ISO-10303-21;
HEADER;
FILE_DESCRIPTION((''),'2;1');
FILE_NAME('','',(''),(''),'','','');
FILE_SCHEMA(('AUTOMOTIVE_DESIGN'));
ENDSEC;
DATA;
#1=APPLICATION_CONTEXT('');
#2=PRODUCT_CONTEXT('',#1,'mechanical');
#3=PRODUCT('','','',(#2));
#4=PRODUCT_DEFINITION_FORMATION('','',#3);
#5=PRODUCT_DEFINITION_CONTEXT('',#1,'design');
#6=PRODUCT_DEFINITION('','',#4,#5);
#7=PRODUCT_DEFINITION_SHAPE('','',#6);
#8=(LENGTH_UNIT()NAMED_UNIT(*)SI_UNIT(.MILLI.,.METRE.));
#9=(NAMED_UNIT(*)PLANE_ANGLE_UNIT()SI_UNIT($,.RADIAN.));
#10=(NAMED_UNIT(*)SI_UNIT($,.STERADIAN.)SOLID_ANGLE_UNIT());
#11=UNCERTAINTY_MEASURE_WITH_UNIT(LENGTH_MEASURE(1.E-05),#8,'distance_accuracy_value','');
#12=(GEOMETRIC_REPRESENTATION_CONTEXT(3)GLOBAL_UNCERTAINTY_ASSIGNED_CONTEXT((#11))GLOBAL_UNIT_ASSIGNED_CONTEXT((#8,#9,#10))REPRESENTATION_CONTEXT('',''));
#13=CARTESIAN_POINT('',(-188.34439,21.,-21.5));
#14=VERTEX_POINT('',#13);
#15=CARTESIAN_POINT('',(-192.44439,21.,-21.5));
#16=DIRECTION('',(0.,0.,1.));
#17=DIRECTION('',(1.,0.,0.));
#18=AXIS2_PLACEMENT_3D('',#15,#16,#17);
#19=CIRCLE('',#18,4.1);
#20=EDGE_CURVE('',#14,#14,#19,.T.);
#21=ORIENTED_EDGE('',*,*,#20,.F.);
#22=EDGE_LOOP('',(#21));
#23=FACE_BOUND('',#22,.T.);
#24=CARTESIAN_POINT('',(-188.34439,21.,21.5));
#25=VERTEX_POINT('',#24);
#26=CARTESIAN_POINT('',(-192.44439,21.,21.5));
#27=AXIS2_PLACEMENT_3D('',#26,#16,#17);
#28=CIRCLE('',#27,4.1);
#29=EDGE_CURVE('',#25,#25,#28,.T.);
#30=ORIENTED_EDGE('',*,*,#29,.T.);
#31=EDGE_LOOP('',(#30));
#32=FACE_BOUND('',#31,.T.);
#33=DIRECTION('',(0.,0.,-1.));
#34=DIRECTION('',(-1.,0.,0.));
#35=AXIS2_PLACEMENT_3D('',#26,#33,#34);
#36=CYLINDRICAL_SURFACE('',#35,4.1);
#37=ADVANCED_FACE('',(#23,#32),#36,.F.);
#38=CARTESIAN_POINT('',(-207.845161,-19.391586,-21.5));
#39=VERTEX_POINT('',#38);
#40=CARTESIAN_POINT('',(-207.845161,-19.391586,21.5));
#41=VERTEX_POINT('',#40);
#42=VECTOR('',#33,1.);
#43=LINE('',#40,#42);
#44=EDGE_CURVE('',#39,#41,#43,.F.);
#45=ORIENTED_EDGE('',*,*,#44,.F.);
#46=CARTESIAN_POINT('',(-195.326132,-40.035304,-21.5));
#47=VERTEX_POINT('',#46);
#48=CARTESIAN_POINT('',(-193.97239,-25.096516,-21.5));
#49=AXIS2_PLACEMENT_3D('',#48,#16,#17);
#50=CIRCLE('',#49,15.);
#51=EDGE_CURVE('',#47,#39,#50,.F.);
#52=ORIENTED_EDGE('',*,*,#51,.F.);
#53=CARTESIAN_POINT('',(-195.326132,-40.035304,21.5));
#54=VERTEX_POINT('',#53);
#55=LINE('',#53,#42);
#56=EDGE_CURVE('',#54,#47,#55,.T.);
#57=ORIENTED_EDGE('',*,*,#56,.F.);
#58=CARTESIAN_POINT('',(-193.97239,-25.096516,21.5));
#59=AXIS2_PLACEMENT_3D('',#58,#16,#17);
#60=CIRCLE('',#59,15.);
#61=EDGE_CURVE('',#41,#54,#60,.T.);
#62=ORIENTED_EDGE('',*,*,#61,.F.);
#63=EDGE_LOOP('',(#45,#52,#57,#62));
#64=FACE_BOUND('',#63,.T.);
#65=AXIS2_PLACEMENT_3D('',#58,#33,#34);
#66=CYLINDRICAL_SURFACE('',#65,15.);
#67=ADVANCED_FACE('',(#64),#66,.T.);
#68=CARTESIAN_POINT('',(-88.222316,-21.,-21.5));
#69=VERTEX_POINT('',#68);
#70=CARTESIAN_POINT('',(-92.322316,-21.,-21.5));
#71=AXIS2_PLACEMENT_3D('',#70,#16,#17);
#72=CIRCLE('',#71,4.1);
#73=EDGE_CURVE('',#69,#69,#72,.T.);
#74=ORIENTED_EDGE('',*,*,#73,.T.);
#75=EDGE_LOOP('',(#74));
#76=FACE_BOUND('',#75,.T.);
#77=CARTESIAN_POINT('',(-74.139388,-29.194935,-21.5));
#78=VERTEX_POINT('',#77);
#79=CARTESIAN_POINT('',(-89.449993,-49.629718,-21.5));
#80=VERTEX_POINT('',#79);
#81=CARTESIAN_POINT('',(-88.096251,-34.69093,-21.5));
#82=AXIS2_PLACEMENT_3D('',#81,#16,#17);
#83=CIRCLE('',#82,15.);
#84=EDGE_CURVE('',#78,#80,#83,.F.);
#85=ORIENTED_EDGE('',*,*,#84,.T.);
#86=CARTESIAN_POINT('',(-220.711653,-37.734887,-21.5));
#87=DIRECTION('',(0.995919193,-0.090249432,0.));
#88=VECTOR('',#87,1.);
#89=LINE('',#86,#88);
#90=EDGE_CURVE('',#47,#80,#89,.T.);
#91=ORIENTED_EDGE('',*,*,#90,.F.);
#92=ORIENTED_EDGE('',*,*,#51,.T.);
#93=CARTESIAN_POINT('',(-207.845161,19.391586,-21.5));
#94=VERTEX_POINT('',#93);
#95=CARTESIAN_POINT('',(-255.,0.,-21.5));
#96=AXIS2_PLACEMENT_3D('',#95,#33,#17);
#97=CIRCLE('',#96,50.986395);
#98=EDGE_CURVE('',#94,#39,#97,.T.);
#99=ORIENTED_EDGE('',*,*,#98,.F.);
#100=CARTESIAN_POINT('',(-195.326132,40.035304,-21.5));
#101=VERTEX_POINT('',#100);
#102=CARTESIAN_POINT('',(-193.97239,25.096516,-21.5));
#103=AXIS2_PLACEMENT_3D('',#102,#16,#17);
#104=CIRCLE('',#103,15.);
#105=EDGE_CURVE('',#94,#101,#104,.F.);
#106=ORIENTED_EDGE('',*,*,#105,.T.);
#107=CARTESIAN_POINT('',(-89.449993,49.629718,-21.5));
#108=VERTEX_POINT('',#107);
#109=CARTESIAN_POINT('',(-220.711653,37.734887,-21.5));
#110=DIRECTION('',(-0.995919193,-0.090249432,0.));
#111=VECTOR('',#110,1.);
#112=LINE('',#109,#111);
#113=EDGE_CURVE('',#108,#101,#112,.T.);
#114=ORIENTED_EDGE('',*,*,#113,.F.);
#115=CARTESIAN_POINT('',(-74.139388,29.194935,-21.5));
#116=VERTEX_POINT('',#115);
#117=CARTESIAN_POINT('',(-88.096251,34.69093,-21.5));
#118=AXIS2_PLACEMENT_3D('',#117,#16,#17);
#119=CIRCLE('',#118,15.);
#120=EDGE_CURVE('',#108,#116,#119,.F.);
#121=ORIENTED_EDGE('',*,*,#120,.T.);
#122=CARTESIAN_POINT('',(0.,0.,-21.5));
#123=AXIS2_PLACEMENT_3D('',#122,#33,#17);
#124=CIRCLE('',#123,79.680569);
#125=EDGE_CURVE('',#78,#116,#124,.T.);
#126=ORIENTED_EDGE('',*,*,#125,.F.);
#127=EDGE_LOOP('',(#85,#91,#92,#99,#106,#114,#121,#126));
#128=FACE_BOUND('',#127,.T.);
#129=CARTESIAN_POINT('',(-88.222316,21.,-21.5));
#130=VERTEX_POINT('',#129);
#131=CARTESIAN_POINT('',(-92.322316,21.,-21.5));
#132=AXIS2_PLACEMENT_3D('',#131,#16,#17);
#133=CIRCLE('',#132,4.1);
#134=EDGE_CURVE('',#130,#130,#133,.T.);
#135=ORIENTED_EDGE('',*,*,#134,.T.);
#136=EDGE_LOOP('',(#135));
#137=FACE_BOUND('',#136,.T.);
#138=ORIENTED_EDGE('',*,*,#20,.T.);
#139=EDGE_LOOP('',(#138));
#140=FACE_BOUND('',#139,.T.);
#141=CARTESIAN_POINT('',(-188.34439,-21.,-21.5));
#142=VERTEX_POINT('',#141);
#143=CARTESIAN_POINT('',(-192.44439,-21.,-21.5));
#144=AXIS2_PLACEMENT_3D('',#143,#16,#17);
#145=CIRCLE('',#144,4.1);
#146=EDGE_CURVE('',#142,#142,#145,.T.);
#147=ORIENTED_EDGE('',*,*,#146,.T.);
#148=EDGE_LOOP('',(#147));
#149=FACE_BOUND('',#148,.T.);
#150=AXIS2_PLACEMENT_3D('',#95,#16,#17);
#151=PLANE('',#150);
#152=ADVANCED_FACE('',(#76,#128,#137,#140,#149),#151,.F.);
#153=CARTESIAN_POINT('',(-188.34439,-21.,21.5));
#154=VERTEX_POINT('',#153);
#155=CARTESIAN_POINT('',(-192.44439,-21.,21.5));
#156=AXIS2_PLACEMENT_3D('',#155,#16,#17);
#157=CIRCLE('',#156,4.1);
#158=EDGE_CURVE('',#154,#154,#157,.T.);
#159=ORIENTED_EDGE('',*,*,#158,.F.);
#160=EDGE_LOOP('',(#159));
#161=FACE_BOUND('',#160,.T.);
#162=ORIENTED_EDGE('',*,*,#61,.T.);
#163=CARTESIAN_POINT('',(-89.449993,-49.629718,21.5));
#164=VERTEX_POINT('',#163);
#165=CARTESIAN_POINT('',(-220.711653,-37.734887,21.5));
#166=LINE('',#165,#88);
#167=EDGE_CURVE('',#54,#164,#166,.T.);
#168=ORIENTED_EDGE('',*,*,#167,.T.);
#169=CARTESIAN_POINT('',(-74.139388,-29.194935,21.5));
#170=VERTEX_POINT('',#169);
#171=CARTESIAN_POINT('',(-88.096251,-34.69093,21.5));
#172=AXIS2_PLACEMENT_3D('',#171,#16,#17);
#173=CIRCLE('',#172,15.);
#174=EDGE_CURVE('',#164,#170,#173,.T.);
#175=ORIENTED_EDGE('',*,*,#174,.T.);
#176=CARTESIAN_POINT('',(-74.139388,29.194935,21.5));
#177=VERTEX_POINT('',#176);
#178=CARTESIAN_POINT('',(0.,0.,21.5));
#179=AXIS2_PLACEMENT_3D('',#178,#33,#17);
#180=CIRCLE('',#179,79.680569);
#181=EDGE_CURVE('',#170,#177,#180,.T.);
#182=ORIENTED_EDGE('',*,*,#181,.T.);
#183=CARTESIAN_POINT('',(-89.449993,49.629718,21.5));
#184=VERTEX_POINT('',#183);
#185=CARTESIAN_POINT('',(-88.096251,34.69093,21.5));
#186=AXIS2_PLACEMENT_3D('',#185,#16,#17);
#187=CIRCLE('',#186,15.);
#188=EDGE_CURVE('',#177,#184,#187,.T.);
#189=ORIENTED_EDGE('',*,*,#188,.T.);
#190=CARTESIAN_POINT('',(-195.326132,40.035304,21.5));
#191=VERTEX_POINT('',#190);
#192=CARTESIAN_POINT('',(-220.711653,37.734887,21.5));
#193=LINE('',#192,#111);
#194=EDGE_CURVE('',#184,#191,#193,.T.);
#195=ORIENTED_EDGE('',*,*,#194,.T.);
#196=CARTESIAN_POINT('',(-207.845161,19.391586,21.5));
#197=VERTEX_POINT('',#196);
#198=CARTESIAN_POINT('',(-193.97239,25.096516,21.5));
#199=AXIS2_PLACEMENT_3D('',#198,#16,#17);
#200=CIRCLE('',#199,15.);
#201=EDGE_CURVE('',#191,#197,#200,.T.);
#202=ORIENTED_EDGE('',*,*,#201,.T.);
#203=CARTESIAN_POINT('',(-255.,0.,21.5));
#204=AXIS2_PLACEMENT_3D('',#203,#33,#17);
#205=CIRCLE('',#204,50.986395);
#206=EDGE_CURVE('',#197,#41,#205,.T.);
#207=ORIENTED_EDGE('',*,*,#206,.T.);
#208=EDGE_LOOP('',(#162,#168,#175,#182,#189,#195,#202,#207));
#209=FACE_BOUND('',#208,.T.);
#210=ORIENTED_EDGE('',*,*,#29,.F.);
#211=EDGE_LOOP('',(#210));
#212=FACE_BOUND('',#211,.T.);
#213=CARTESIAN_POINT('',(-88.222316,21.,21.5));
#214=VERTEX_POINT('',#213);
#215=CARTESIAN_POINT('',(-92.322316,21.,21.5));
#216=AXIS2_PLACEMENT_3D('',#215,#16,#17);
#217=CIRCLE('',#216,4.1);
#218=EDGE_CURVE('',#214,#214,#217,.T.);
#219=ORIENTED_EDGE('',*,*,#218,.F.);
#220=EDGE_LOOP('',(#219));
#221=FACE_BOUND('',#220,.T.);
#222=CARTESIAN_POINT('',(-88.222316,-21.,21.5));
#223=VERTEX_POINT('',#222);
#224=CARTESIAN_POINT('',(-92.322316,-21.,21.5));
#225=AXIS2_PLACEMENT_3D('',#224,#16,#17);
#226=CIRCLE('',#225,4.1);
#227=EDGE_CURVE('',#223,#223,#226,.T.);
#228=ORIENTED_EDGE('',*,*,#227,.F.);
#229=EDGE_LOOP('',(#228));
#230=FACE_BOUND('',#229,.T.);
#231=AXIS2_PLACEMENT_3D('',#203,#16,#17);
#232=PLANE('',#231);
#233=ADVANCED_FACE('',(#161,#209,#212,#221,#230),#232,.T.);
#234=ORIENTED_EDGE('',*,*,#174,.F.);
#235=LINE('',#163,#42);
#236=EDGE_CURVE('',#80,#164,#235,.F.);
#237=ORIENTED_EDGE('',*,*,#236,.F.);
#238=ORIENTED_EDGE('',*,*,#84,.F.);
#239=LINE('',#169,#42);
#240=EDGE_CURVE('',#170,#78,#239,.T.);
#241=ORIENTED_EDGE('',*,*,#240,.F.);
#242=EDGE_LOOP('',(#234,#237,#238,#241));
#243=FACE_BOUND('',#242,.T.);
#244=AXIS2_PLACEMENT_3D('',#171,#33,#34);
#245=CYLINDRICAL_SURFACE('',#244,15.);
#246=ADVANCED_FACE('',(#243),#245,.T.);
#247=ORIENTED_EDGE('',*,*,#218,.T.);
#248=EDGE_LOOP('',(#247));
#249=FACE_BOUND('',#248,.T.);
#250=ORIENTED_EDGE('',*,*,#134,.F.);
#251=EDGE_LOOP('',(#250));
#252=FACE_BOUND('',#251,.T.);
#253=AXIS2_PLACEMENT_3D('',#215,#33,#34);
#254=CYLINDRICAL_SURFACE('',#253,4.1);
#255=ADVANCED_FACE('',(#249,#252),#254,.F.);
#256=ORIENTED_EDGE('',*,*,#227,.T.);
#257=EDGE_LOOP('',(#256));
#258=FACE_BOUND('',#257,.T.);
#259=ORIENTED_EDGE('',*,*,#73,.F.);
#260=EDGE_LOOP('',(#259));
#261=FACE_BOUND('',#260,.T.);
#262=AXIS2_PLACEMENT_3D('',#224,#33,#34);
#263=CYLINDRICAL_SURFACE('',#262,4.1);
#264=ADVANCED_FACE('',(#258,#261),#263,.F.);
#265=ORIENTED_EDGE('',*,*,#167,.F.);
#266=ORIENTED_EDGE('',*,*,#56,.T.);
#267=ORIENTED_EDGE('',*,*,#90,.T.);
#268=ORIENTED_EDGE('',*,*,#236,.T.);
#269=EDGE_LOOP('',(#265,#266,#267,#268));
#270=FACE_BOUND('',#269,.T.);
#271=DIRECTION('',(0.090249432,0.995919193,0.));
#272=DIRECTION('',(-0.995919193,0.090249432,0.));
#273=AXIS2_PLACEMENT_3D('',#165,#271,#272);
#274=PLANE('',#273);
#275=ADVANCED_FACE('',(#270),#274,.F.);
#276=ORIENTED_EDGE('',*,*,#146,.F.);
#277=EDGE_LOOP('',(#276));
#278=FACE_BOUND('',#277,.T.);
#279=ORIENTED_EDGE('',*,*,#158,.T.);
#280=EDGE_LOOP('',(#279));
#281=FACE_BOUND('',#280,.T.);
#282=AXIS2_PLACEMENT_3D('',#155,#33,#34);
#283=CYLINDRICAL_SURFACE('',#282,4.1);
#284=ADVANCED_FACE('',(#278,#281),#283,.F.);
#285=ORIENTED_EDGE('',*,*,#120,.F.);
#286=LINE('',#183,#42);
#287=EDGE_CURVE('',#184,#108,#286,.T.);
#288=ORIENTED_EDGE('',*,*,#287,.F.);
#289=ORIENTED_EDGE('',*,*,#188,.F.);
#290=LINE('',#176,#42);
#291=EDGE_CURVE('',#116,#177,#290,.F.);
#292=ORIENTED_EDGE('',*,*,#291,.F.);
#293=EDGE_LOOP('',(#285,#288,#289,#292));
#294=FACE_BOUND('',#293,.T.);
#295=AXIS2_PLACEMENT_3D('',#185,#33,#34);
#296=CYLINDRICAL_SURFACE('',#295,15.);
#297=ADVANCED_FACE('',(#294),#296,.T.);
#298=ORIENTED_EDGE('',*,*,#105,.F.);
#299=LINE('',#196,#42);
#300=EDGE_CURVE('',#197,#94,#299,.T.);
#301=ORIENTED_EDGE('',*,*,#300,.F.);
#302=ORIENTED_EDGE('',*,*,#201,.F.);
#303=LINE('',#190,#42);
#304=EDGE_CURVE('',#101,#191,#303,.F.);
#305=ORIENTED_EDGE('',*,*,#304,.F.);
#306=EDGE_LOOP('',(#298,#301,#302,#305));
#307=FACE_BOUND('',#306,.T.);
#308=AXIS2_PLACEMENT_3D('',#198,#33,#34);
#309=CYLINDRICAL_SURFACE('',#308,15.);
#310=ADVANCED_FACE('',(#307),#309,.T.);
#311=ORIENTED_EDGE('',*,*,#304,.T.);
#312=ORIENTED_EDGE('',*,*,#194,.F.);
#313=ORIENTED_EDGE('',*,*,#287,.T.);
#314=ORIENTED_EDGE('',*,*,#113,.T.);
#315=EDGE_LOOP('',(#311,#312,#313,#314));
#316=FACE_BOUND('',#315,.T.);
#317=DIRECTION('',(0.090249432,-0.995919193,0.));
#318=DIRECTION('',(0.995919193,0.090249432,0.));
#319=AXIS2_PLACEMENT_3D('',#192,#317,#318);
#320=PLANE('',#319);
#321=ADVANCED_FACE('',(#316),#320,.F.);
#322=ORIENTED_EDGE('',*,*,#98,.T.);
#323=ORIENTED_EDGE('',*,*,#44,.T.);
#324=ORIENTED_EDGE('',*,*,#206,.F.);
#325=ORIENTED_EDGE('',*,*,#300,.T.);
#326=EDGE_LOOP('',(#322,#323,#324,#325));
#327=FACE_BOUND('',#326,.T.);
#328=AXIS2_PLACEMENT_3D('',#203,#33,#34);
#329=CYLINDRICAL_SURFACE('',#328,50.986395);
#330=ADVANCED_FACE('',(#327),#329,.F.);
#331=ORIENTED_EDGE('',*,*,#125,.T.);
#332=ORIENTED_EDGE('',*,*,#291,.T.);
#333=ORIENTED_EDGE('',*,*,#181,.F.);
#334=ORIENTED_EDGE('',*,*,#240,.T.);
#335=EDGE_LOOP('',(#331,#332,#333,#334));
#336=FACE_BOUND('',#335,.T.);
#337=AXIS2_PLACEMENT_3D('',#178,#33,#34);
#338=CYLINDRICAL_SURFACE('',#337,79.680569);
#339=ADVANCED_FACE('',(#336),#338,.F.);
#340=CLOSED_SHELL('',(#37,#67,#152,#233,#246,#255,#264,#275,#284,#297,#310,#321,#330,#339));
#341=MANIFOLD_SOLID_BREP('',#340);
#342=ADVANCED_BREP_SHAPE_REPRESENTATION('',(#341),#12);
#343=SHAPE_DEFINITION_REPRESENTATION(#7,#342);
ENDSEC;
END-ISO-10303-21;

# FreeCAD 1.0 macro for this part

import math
import FreeCAD as App
import Part
import Sketcher

V = App.Vector


def edges_at(feature, points):
    """Names of the edges that pass closest to the given points."""
    edges = feature.Shape.Edges
    near = lambda p: min(range(len(edges)), key=lambda i: edges[i].distToShape(Part.Vertex(*p))[0])
    return sorted({f"Edge{near(p) + 1}" for p in points})

doc = App.newDocument("Part")
body = doc.addObject("PartDesign::Body", "Body")

sketch1 = doc.addObject("Sketcher::SketchObject", "Sketch")
body.addObject(sketch1)
sketch1.AttachmentSupport = (doc.XY_Plane, [""])
sketch1.MapMode = "FlatFace"
sketch1.addGeometry([
    Part.LineSegment(V(-60.1, 52.3, 0), V(-220.7, 37.7, 0)),
    Part.ArcOfCircle(Part.Circle(V(-255, 0, 0), V(0, 0, 1), 51), math.radians(-48), math.radians(48)),
    Part.LineSegment(V(-220.7, -37.7, 0), V(-60.1, -52.3, 0)),
    Part.ArcOfCircle(Part.Circle(V(0, 0, 0), V(0, 0, 1), 79.7), math.radians(139), math.radians(221)),
    Part.Circle(V(-92.3, -21, 0), V(0, 0, 1), 4.1),
    Part.Circle(V(-192.4, -21, 0), V(0, 0, 1), 4.1),
    Part.Circle(V(-92.3, 21, 0), V(0, 0, 1), 4.1),
    Part.Circle(V(-192.4, 21, 0), V(0, 0, 1), 4.1),
], False)
sketch1.addConstraint([
    Sketcher.Constraint("Coincident", 0, 2, 1, 2),
    Sketcher.Constraint("Coincident", 1, 1, 2, 1),
    Sketcher.Constraint("Coincident", 2, 2, 3, 2),
    Sketcher.Constraint("Coincident", 3, 1, 0, 1),
    Sketcher.Constraint("Coincident", 3, 3, -1, 1),
    Sketcher.Constraint("Equal", 4, 5),
    Sketcher.Constraint("Equal", 5, 6),
    Sketcher.Constraint("Equal", 6, 7),
    Sketcher.Constraint("Symmetric", 4, 3, 6, 3, -1),
    Sketcher.Constraint("Symmetric", 5, 3, 7, 3, -1),
    Sketcher.Constraint("Symmetric", 0, 2, 1, 1, -1),
    Sketcher.Constraint("Horizontal", 4, 3, 5, 3),
    Sketcher.Constraint("Vertical", 2, 2, 3, 1),
    Sketcher.Constraint("Diameter", 4, 8.2),
    Sketcher.Constraint("DistanceX", 1, 3, -1, 1, 255.0),
    Sketcher.Constraint("DistanceY", 4, 3, -1, 1, 21.0),
    Sketcher.Constraint("Radius", 3, 79.680569),
    Sketcher.Constraint("Radius", 1, 50.986395),
    Sketcher.Constraint("DistanceY", 2, 2, -1, 1, 52.287099),
    Sketcher.Constraint("DistanceX", 5, 3, -1, 1, 192.44439),
    Sketcher.Constraint("DistanceX", 4, 3, 2, 2, 32.197011),
    Sketcher.Constraint("Distance", 0, 161.244355),
])
pad1 = doc.addObject("PartDesign::Pad", "Pad")
body.addObject(pad1)
pad1.Profile = sketch1
pad1.Length = 43
pad1.Midplane = True
doc.recompute()

fillet = doc.addObject("PartDesign::Fillet", "Fillet")
body.addObject(fillet)
fillet.Base = (pad1, edges_at(pad1, [
    (-220.712, 37.735, 0),
    (-60.125, 52.287, 0),
    (-60.125, -52.287, 0),
    (-220.712, -37.735, 0),
]))
fillet.Radius = 15

doc.recompute()
